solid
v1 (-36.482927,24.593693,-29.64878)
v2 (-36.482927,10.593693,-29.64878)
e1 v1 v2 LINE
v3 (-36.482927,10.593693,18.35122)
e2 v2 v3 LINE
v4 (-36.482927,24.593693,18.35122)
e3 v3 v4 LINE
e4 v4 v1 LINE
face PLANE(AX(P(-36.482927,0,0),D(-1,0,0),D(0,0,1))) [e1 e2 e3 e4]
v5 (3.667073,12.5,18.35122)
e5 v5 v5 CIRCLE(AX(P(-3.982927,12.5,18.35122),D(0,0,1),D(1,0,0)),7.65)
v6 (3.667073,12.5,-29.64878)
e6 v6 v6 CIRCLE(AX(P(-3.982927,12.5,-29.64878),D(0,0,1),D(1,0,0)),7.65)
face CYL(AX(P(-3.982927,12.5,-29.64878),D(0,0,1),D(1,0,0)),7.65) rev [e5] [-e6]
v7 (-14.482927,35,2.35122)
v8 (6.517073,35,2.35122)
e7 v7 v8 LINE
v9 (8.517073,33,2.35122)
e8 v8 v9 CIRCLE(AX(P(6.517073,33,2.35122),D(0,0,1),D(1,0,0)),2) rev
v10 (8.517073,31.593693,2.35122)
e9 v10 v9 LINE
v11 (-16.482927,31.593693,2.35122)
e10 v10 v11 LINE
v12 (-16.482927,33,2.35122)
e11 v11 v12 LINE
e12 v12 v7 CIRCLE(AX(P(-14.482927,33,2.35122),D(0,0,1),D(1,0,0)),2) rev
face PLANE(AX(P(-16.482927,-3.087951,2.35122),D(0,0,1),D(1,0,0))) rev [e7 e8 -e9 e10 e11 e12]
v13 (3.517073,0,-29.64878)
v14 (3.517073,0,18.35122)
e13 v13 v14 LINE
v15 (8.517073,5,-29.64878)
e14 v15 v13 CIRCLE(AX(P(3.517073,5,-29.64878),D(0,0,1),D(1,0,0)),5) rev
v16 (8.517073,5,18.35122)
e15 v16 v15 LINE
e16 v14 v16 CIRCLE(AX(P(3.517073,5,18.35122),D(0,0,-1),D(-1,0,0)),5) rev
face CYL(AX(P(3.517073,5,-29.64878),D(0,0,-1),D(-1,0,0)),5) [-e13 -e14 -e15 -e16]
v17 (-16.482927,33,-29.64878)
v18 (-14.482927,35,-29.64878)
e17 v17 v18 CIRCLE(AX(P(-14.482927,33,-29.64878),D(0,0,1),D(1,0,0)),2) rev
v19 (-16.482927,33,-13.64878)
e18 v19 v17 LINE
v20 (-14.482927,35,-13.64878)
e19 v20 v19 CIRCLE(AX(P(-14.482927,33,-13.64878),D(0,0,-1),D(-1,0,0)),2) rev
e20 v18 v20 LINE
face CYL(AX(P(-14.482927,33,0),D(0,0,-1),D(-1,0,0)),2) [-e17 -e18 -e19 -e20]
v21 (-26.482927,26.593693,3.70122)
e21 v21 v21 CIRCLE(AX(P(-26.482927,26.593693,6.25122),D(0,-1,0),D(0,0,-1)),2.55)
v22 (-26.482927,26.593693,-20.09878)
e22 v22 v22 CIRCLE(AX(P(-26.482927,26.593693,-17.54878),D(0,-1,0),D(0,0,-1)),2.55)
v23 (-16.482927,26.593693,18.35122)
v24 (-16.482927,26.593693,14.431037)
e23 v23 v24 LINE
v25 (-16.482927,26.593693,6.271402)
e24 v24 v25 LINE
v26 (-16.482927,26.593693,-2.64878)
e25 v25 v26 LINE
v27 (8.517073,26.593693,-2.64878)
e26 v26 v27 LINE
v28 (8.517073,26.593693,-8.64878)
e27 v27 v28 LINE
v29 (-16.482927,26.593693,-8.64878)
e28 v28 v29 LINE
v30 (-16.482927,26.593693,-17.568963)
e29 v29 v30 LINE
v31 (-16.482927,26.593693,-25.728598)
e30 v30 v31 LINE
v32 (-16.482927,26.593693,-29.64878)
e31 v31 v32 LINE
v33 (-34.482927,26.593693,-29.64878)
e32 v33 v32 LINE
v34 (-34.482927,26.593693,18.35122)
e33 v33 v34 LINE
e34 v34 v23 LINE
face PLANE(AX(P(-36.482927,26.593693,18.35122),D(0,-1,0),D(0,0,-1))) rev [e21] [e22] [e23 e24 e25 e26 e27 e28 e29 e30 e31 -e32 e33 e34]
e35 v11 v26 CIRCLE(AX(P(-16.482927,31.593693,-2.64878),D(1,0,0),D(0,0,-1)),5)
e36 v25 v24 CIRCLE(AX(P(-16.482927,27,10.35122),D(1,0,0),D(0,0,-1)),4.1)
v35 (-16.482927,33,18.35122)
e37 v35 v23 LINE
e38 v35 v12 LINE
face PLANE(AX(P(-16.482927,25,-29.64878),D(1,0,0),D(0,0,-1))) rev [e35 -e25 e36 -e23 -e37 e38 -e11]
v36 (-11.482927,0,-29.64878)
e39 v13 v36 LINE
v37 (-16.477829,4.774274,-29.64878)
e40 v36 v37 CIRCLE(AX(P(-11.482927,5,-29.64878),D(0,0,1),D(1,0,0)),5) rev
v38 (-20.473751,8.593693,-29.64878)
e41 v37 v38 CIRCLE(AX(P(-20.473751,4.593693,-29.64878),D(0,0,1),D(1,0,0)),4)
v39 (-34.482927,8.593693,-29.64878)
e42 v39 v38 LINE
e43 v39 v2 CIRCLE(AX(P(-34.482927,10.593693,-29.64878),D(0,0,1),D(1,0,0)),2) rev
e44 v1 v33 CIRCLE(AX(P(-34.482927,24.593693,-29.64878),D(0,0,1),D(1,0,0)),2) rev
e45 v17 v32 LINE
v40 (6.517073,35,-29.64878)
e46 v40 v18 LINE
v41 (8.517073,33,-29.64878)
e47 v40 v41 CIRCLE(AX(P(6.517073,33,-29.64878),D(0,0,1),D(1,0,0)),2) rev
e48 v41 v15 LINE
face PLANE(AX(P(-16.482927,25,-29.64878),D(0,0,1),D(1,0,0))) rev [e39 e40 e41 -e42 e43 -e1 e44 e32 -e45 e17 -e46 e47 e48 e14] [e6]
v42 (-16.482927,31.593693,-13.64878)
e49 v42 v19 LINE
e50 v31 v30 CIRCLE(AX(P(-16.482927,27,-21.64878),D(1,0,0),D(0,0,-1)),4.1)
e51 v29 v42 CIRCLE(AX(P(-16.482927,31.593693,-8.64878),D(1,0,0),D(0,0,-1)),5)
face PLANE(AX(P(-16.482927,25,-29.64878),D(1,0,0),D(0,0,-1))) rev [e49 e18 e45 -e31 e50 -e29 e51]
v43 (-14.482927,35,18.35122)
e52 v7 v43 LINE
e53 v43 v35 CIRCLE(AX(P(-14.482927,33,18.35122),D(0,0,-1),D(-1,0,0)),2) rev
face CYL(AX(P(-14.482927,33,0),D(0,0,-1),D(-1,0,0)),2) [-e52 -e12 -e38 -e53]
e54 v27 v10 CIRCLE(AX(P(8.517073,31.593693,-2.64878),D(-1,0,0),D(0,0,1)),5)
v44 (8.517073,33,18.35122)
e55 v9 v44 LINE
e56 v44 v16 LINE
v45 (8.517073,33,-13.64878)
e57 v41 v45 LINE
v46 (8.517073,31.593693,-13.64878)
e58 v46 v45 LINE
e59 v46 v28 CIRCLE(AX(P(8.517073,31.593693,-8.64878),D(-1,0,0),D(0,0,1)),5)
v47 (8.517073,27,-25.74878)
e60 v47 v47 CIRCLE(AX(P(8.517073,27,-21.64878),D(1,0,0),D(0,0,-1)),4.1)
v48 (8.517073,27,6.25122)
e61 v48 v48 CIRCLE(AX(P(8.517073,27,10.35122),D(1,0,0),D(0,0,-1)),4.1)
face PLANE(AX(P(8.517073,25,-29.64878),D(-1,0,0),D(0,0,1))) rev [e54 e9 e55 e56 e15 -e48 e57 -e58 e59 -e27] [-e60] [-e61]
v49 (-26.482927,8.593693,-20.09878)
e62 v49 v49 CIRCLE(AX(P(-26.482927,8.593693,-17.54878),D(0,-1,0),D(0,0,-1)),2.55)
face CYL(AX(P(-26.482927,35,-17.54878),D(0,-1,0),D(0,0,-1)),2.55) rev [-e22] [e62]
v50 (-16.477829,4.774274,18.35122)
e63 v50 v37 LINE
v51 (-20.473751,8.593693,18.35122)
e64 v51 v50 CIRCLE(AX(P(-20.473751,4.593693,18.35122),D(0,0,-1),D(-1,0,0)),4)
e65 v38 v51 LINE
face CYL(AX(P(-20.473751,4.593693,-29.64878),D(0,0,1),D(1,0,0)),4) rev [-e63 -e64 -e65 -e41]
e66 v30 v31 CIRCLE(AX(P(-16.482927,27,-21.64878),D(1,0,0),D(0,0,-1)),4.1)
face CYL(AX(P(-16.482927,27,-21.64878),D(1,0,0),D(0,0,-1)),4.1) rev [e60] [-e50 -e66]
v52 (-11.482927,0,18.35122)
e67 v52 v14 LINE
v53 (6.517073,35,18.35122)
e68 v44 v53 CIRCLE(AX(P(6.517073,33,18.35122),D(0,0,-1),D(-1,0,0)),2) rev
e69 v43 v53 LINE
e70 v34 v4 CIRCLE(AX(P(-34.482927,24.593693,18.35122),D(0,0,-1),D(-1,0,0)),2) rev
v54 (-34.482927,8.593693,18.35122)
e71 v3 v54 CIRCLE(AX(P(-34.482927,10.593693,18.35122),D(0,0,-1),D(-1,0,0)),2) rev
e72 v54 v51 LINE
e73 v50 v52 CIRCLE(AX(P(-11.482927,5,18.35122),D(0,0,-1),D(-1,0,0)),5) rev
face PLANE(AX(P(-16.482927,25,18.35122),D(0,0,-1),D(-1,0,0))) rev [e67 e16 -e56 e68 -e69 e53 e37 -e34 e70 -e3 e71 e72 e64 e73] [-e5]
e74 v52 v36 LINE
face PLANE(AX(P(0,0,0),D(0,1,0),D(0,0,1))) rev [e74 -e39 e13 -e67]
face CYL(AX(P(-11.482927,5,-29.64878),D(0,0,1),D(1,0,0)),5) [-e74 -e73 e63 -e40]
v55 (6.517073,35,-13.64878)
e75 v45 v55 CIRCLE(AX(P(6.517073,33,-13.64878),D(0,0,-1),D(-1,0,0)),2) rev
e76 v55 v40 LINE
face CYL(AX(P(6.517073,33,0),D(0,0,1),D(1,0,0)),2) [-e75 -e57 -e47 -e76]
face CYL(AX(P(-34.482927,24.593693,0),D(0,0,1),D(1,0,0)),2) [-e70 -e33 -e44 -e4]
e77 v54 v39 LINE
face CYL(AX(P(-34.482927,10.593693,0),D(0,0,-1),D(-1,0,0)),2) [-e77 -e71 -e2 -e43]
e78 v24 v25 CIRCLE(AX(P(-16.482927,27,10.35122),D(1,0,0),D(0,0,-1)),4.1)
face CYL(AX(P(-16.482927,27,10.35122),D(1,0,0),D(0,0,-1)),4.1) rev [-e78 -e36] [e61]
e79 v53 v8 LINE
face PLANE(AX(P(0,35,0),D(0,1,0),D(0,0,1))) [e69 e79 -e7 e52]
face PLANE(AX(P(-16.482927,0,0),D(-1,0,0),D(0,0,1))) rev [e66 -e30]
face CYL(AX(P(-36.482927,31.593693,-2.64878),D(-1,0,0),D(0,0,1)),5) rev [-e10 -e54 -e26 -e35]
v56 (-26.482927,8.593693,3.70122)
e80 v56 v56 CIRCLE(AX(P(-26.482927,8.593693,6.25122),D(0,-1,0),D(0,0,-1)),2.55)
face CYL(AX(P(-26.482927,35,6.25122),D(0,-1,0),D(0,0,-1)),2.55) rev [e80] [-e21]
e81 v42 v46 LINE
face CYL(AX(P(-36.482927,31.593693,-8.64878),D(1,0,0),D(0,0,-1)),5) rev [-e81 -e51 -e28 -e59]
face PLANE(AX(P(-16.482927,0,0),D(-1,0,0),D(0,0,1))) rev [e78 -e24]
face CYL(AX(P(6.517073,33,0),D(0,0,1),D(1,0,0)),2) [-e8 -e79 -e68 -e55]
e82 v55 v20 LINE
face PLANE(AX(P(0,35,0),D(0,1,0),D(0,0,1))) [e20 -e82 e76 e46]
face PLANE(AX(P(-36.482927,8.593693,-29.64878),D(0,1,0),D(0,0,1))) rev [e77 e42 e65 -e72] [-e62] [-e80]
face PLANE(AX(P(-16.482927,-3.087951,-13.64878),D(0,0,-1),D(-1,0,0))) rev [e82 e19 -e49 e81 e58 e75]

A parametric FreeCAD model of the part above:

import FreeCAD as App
import Part
import Sketcher
from FreeCAD import Vector


def edges_at(feature, points):
    """Names of the edges that pass closest to the given points."""
    edges = feature.Shape.Edges
    near = lambda p: min(range(len(edges)), key=lambda i: edges[i].distToShape(Part.Vertex(*p))[0])
    return sorted({f"Edge{near(p) + 1}" for p in points})

doc = App.newDocument("Part")
body = doc.addObject("PartDesign::Body", "Body")

# Sketch on XZ plane
sketch1 = body.newObject("Sketcher::SketchObject", "Sketch")
sketch1.AttachmentSupport = (doc.getObject("XZ_Plane"), [""])
sketch1.MapMode = "FlatFace"
sketch1.addGeometry([
    Part.LineSegment(Vector(-16, -30, 0), Vector(-16, 18, 0)),
    Part.LineSegment(Vector(-16, 18, 0), Vector(9, 18, 0)),
    Part.LineSegment(Vector(9, 18, 0), Vector(9, -30, 0)),
    Part.LineSegment(Vector(9, -30, 0), Vector(-16, -30, 0)),
], False)
sketch1.addConstraint([
    Sketcher.Constraint("Coincident", 0, 2, 1, 1),
    Sketcher.Constraint("Coincident", 1, 2, 2, 1),
    Sketcher.Constraint("Coincident", 2, 2, 3, 1),
    Sketcher.Constraint("Coincident", 3, 2, 0, 1),
    Sketcher.Constraint("Vertical", 0),
    Sketcher.Constraint("Horizontal", 1),
    Sketcher.Constraint("Vertical", 2),
    Sketcher.Constraint("Horizontal", 3),
    Sketcher.Constraint("DistanceX", 1, 1, 1, 2, 25.0),
    Sketcher.Constraint("DistanceY", 0, 1, 0, 2, 48.0),
    Sketcher.Constraint("DistanceY", -1, 1, 0, 2, 18.35122),
    Sketcher.Constraint("DistanceX", 0, 2, -1, 1, 16.482927),
])
pad1 = body.newObject("PartDesign::Pad", "Pad")
pad1.Profile = sketch1
pad1.Length = 25
pad1.Reversed = True

# Sketch on XY plane
sketch2 = body.newObject("Sketcher::SketchObject", "Sketch001")
sketch2.AttachmentSupport = (doc.getObject("XY_Plane"), [""])
sketch2.MapMode = "FlatFace"
sketch2.AttachmentOffset = App.Placement(Vector(0, 0, 18.35122), App.Rotation())
sketch2.addGeometry(Part.Circle(Vector(-4, 12, 0), Vector(0, 0, 1), 8), False)
sketch2.addConstraint([
    Sketcher.Constraint("Diameter", 0, 15.3),
    Sketcher.Constraint("DistanceY", -1, 1, 0, 3, 12.5),
    Sketcher.Constraint("DistanceX", 0, 3, -1, 1, 3.982927),
])
pocket1 = body.newObject("PartDesign::Pocket", "Pocket")
pocket1.Profile = sketch2
pocket1.Type = "ThroughAll"

# Sketch on XZ plane
sketch3 = body.newObject("Sketcher::SketchObject", "Sketch002")
sketch3.AttachmentSupport = (doc.getObject("XZ_Plane"), [""])
sketch3.MapMode = "FlatFace"
sketch3.AttachmentOffset = App.Placement(Vector(0, 0, -25), App.Rotation())
sketch3.addGeometry([
    Part.LineSegment(Vector(-16, -30, 0), Vector(-16, 18, 0)),
    Part.LineSegment(Vector(-16, 18, 0), Vector(9, 18, 0)),
    Part.LineSegment(Vector(9, 18, 0), Vector(9, -30, 0)),
    Part.LineSegment(Vector(9, -30, 0), Vector(-16, -30, 0)),
], False)
sketch3.addConstraint([
    Sketcher.Constraint("Coincident", 0, 2, 1, 1),
    Sketcher.Constraint("Coincident", 1, 2, 2, 1),
    Sketcher.Constraint("Coincident", 2, 2, 3, 1),
    Sketcher.Constraint("Coincident", 3, 2, 0, 1),
    Sketcher.Constraint("Vertical", 0),
    Sketcher.Constraint("Horizontal", 1),
    Sketcher.Constraint("Vertical", 2),
    Sketcher.Constraint("Horizontal", 3),
    Sketcher.Constraint("DistanceX", 1, 1, 1, 2, 25.0),
    Sketcher.Constraint("DistanceY", 0, 1, 0, 2, 48.0),
    Sketcher.Constraint("DistanceY", -1, 1, 0, 2, 18.35122),
    Sketcher.Constraint("DistanceX", 0, 2, -1, 1, 16.482927),
])
pad2 = body.newObject("PartDesign::Pad", "Pad001")
pad2.Profile = sketch3
pad2.Length = 10
pad2.Reversed = True

# Sketch on YZ plane
sketch4 = body.newObject("Sketcher::SketchObject", "Sketch003")
sketch4.AttachmentSupport = (doc.getObject("YZ_Plane"), [""])
sketch4.MapMode = "FlatFace"
sketch4.AttachmentOffset = App.Placement(Vector(0, 0, 8.517073), App.Rotation())
sketch4.addGeometry([
    Part.Circle(Vector(27, 10.4, 0), Vector(0, 0, 1), 4.1),
    Part.Circle(Vector(27, -21.6, 0), Vector(0, 0, 1), 4.1),
], False)
sketch4.addConstraint([
    Sketcher.Constraint("Equal", 0, 1),
    Sketcher.Constraint("Vertical", 0, 3, 1, 3),
    Sketcher.Constraint("Diameter", 0, 8.2),
    Sketcher.Constraint("DistanceX", -1, 1, 0, 3, 27.0),
    Sketcher.Constraint("DistanceY", 1, 3, 0, 3, 32.0),
    Sketcher.Constraint("DistanceY", -1, 1, 0, 3, 10.35122),
])
pocket2 = body.newObject("PartDesign::Pocket", "Pocket001")
pocket2.Profile = sketch4
pocket2.Type = "ThroughAll"
doc.recompute()

fillet = body.newObject("PartDesign::Fillet", "Fillet")
fillet.Base = (pocket2, edges_at(pocket2, [(8.517, 0, -5.649), (-16.483, 0, -5.649)]))
fillet.Radius = 5

# Sketch on YZ plane
sketch5 = body.newObject("Sketcher::SketchObject", "Sketch004")
sketch5.AttachmentSupport = (doc.getObject("YZ_Plane"), [""])
sketch5.MapMode = "FlatFace"
sketch5.AttachmentOffset = App.Placement(Vector(0, 0, -16.482927), App.Rotation())
sketch5.addGeometry([
    Part.LineSegment(Vector(27, -30, 0), Vector(9, -30, 0)),
    Part.LineSegment(Vector(9, -30, 0), Vector(9, 18, 0)),
    Part.LineSegment(Vector(9, 18, 0), Vector(27, 18, 0)),
    Part.LineSegment(Vector(27, 18, 0), Vector(27, -30, 0)),
], False)
sketch5.addConstraint([
    Sketcher.Constraint("Coincident", 0, 2, 1, 1),
    Sketcher.Constraint("Coincident", 1, 2, 2, 1),
    Sketcher.Constraint("Coincident", 2, 2, 3, 1),
    Sketcher.Constraint("Coincident", 3, 2, 0, 1),
    Sketcher.Constraint("Horizontal", 0),
    Sketcher.Constraint("Vertical", 1),
    Sketcher.Constraint("Horizontal", 2),
    Sketcher.Constraint("Vertical", 3),
    Sketcher.Constraint("DistanceX", 0, 2, 0, 1, 18.0),
    Sketcher.Constraint("DistanceY", 1, 1, 1, 2, 48.0),
    Sketcher.Constraint("DistanceY", 0, 2, -1, 1, 29.64878),
    Sketcher.Constraint("DistanceX", -1, 1, 0, 2, 8.593693),
])
pad3 = body.newObject("PartDesign::Pad", "Pad002")
pad3.Profile = sketch5
pad3.Length = 20
pad3.Reversed = True

# Sketch on XZ plane
sketch6 = body.newObject("Sketcher::SketchObject", "Sketch005")
sketch6.AttachmentSupport = (doc.getObject("XZ_Plane"), [""])
sketch6.MapMode = "FlatFace"
sketch6.AttachmentOffset = App.Placement(Vector(0, 0, -8.593693), App.Rotation())
sketch6.addGeometry([
    Part.Circle(Vector(-26.5, 6.3, 0), Vector(0, 0, 1), 2.5),
    Part.Circle(Vector(-26.5, -17.5, 0), Vector(0, 0, 1), 2.5),
], False)
sketch6.addConstraint([
    Sketcher.Constraint("Equal", 0, 1),
    Sketcher.Constraint("Vertical", 0, 3, 1, 3),
    Sketcher.Constraint("Diameter", 0, 5.1),
    Sketcher.Constraint("DistanceY", 1, 3, 0, 3, 23.8),
    Sketcher.Constraint("DistanceY", -1, 1, 0, 3, 6.25122),
    Sketcher.Constraint("DistanceX", 0, 3, -1, 1, 26.482927),
])
pocket3 = body.newObject("PartDesign::Pocket", "Pocket002")
pocket3.Profile = sketch6
pocket3.Type = "ThroughAll"
doc.recompute()

fillet2 = body.newObject("PartDesign::Fillet", "Fillet001")
fillet2.Base = (pocket3, edges_at(pocket3, [(-16.483, 8.594, -5.649)]))
fillet2.Radius = 4

# Sketch on XZ plane
sketch7 = body.newObject("Sketcher::SketchObject", "Sketch006")
sketch7.AttachmentSupport = (doc.getObject("XZ_Plane"), [""])
sketch7.MapMode = "FlatFace"
sketch7.AttachmentOffset = App.Placement(Vector(0, 0, -35), App.Rotation())
sketch7.addGeometry([
    Part.LineSegment(Vector(-16, -14, 0), Vector(-16, 2, 0)),
    Part.LineSegment(Vector(-16, 2, 0), Vector(9, 2, 0)),
    Part.LineSegment(Vector(9, 2, 0), Vector(9, -14, 0)),
    Part.LineSegment(Vector(9, -14, 0), Vector(-16, -14, 0)),
], False)
sketch7.addConstraint([
    Sketcher.Constraint("Coincident", 0, 2, 1, 1),
    Sketcher.Constraint("Coincident", 1, 2, 2, 1),
    Sketcher.Constraint("Coincident", 2, 2, 3, 1),
    Sketcher.Constraint("Coincident", 3, 2, 0, 1),
    Sketcher.Constraint("Vertical", 0),
    Sketcher.Constraint("Horizontal", 1),
    Sketcher.Constraint("Vertical", 2),
    Sketcher.Constraint("Horizontal", 3),
    Sketcher.Constraint("DistanceX", 1, 1, 1, 2, 25.0),
    Sketcher.Constraint("DistanceY", 0, 1, 0, 2, 16.0),
    Sketcher.Constraint("DistanceY", -1, 1, 0, 2, 2.35122),
    Sketcher.Constraint("DistanceX", 0, 2, -1, 1, 16.482927),
])
pocket4 = body.newObject("PartDesign::Pocket", "Pocket003")
pocket4.Profile = sketch7
pocket4.Length = 8.406307
pocket4.Reversed = True
doc.recompute()

fillet3 = body.newObject("PartDesign::Fillet", "Fillet002")
fillet3.Base = (pocket4, edges_at(pocket4, [(-3.983, 26.594, 2.351), (-3.983, 26.594, -13.649)]))
fillet3.Radius = 5
doc.recompute()

fillet4 = body.newObject("PartDesign::Fillet", "Fillet003")
fillet4.Base = (fillet3, edges_at(fillet3, [(-36.483, 26.594, -5.649), (-36.483, 8.594, -5.649)]))
fillet4.Radius = 2
doc.recompute()

fillet5 = body.newObject("PartDesign::Fillet", "Fillet004")
fillet5.Base = (fillet4, edges_at(fillet4, [
    (-16.483, 35, -21.649),
    (8.517, 35, 10.351),
    (-16.483, 35, 10.351),
    (8.517, 35, -21.649),
]))
fillet5.Radius = 2

doc.recompute()
